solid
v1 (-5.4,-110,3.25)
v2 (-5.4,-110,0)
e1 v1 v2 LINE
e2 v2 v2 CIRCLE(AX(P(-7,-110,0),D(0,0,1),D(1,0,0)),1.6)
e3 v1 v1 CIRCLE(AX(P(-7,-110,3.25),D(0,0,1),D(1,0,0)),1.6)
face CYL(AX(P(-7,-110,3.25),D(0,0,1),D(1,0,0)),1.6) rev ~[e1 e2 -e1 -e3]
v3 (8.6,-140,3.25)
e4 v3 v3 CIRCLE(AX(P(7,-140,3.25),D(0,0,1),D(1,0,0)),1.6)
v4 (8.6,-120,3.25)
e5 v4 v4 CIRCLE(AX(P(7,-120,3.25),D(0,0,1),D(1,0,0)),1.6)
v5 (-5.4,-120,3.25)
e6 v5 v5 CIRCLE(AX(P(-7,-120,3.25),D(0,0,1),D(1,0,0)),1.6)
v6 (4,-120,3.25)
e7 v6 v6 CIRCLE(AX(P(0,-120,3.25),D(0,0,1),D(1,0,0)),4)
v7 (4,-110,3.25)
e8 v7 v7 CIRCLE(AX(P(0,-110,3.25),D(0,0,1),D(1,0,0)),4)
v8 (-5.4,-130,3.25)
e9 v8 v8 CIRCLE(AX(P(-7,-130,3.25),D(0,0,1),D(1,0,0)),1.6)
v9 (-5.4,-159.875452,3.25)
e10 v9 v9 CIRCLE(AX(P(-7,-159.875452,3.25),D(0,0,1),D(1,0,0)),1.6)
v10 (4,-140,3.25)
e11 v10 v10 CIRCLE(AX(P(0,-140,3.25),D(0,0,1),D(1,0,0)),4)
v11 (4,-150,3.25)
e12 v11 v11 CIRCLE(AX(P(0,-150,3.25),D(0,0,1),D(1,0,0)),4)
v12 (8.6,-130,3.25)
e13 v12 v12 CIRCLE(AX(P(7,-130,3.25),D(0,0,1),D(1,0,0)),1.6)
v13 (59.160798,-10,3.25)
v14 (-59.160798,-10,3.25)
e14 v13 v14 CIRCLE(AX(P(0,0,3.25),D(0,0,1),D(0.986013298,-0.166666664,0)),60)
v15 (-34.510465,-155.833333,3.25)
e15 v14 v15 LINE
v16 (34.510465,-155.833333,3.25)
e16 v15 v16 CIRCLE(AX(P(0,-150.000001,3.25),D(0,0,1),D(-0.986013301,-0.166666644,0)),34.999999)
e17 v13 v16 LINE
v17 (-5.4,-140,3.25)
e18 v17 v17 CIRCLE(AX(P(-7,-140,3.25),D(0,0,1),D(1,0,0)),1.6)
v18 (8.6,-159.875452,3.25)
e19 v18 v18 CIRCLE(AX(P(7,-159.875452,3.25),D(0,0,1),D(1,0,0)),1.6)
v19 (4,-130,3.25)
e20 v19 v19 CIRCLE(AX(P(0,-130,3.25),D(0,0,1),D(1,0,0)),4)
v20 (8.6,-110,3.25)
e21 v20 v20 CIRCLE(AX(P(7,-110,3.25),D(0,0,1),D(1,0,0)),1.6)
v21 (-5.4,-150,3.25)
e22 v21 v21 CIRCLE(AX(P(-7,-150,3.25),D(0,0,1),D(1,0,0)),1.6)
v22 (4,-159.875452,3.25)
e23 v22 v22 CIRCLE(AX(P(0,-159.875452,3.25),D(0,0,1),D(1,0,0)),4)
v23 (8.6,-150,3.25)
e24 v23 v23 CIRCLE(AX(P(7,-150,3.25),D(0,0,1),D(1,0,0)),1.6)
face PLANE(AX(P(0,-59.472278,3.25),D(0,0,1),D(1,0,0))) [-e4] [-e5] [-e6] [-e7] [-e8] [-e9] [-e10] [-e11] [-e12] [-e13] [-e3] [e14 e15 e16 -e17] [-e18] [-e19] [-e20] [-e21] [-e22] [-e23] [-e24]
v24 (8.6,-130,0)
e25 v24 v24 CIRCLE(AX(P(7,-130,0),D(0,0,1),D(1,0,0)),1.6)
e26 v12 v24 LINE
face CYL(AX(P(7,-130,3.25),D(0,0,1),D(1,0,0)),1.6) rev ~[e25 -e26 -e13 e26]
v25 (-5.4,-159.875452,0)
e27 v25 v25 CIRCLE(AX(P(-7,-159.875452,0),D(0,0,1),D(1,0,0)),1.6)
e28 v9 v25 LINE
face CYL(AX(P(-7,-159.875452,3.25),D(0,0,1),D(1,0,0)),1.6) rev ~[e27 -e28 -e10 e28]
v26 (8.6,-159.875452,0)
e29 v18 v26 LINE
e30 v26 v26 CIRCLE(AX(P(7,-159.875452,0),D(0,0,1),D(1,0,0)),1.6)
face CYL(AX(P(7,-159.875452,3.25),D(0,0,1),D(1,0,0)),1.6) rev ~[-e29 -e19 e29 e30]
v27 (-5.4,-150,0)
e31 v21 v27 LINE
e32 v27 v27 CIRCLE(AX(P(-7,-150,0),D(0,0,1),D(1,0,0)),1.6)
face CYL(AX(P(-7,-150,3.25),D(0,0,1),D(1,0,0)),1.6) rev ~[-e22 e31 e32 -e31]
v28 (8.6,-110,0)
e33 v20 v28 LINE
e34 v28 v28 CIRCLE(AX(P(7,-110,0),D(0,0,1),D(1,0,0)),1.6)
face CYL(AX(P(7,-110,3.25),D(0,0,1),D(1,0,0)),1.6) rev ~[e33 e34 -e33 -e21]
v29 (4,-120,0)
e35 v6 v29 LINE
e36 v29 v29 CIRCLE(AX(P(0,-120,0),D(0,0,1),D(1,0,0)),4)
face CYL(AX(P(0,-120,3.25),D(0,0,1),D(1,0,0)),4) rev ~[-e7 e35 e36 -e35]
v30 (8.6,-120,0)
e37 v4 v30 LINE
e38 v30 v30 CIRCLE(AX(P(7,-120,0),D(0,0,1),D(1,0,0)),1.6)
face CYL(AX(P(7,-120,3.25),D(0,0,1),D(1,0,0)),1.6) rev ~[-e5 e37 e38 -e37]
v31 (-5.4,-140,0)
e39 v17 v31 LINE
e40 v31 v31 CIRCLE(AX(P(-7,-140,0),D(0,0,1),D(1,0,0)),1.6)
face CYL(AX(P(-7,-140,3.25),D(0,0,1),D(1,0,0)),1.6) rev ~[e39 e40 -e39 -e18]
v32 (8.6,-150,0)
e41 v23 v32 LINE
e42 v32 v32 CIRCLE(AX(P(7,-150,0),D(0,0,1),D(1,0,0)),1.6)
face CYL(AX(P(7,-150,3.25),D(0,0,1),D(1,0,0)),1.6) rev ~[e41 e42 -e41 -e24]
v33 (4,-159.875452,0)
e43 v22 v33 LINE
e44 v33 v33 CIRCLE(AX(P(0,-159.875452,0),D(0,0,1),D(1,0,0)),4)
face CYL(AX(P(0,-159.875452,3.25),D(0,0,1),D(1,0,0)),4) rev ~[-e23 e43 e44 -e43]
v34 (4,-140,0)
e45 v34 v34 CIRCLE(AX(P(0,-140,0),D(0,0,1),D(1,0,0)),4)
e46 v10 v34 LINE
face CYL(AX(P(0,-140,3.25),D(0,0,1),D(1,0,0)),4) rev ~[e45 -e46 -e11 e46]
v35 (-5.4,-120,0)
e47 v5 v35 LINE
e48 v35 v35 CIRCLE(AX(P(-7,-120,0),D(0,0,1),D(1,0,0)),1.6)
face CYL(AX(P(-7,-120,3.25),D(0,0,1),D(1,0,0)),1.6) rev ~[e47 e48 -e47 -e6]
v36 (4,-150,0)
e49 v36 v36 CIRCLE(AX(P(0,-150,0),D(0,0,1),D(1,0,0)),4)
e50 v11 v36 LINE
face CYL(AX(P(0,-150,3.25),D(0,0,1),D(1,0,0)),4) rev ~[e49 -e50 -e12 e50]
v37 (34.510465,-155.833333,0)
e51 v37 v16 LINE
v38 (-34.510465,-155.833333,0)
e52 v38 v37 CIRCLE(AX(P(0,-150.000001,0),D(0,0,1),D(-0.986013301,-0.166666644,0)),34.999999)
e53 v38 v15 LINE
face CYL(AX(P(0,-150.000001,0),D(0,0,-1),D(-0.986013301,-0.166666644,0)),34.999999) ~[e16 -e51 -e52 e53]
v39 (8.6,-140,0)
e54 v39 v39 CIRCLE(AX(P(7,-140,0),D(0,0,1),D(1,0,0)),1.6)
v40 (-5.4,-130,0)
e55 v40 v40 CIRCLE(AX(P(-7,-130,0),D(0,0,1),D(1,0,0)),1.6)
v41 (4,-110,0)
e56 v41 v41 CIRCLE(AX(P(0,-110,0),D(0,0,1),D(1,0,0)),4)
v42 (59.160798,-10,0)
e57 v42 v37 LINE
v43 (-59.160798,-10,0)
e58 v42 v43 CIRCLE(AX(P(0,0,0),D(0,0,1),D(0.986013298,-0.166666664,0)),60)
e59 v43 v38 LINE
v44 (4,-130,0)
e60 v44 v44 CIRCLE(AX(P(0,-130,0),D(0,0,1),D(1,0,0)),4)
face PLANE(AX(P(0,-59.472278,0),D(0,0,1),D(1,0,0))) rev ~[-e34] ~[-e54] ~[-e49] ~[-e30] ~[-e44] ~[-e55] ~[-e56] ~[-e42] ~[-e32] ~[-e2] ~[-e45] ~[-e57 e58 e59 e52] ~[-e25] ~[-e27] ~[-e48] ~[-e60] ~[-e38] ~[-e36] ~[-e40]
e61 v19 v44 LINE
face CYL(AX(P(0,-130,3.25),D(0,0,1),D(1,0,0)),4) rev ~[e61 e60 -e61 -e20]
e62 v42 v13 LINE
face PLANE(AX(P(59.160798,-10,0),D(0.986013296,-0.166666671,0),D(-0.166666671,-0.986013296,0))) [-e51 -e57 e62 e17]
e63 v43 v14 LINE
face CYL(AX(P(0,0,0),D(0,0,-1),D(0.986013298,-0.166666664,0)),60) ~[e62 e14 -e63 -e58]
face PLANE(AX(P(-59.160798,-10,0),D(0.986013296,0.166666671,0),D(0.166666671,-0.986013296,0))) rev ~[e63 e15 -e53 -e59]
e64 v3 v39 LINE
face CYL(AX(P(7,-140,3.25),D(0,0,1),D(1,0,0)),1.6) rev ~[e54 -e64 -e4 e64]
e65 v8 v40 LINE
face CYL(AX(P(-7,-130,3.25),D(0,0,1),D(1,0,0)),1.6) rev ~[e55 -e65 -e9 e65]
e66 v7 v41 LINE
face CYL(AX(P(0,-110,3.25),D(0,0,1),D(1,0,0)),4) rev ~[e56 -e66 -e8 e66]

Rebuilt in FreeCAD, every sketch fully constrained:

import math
import FreeCAD as App
import Part
import Sketcher
from FreeCAD import Vector

doc = App.newDocument("Part")
body = doc.addObject("PartDesign::Body", "Body")

# Sketch on XY plane
sketch1 = doc.addObject("Sketcher::SketchObject", "Sketch")
body.addObject(sketch1)
sketch1.AttachmentSupport = (doc.XY_Plane, [""])
sketch1.MapMode = "FlatFace"
sketch1.addGeometry([
    Part.ArcOfCircle(Part.Circle(Vector(0, 0, 0), Vector(0, 0, 1), 60), math.radians(-10), math.radians(190)),
    Part.LineSegment(Vector(-59, -10, 0), Vector(-35, -156, 0)),
    Part.ArcOfCircle(Part.Circle(Vector(0, -150, 0), Vector(0, 0, 1), 35), math.radians(-170), math.radians(-10)),
    Part.LineSegment(Vector(35, -156, 0), Vector(59, -10, 0)),
], False)
sketch1.addConstraint([
    Sketcher.Constraint("Tangent", 0, 2, 1, 1),
    Sketcher.Constraint("Tangent", 1, 2, 2, 1),
    Sketcher.Constraint("Tangent", 2, 2, 3, 1),
    Sketcher.Constraint("Tangent", 3, 2, 0, 1),
    Sketcher.Constraint("Coincident", 0, 3, -1, 1),
    Sketcher.Constraint("PointOnObject", 2, 3, -2),
    Sketcher.Constraint("Radius", 0, 60.0),
    Sketcher.Constraint("Radius", 2, 34.999999),
    Sketcher.Constraint("DistanceY", 2, 3, -1, 1, 150.000001),
])
pad1 = doc.addObject("PartDesign::Pad", "Pad")
body.addObject(pad1)
pad1.Profile = sketch1
pad1.Length = 3.25

# Sketch on XY plane
sketch2 = doc.addObject("Sketcher::SketchObject", "Sketch001")
body.addObject(sketch2)
sketch2.AttachmentSupport = (doc.XY_Plane, [""])
sketch2.MapMode = "FlatFace"
sketch2.AttachmentOffset = App.Placement(Vector(0, 0, 3.25), App.Rotation())
sketch2.addGeometry([
    Part.Circle(Vector(0, -150, 0), Vector(0, 0, 1), 4),  # 0
    Part.Circle(Vector(-7, -150, 0), Vector(0, 0, 1), 1.6),  # 1
    Part.Circle(Vector(7, -150, 0), Vector(0, 0, 1), 1.6),  # 2
    Part.Circle(Vector(0, -130, 0), Vector(0, 0, 1), 4),  # 3
    Part.Circle(Vector(7, -130, 0), Vector(0, 0, 1), 1.6),  # 4
    Part.Circle(Vector(-7, -130, 0), Vector(0, 0, 1), 1.6),  # 5
    Part.Circle(Vector(0, -140, 0), Vector(0, 0, 1), 4),  # 6
    Part.Circle(Vector(7, -140, 0), Vector(0, 0, 1), 1.6),  # 7
    Part.Circle(Vector(-7, -140, 0), Vector(0, 0, 1), 1.6),  # 8
    Part.Circle(Vector(0, -159.9, 0), Vector(0, 0, 1), 4),  # 9
    Part.Circle(Vector(7, -159.9, 0), Vector(0, 0, 1), 1.6),  # 10
    Part.Circle(Vector(-7, -159.9, 0), Vector(0, 0, 1), 1.6),  # 11
    Part.Circle(Vector(0, -120, 0), Vector(0, 0, 1), 4),  # 12
    Part.Circle(Vector(7, -120, 0), Vector(0, 0, 1), 1.6),  # 13
    Part.Circle(Vector(-7, -120, 0), Vector(0, 0, 1), 1.6),  # 14
    Part.Circle(Vector(0, -110, 0), Vector(0, 0, 1), 4),  # 15
    Part.Circle(Vector(7, -110, 0), Vector(0, 0, 1), 1.6),  # 16
    Part.Circle(Vector(-7, -110, 0), Vector(0, 0, 1), 1.6),  # 17
], False)
sketch2.addConstraint([
    Sketcher.Constraint("Equal", 1, 2),
    Sketcher.Constraint("Equal", 0, 3),
    Sketcher.Constraint("Equal", 2, 4),
    Sketcher.Constraint("Equal", 4, 5),
    Sketcher.Constraint("Equal", 3, 6),
    Sketcher.Constraint("Equal", 5, 7),
    Sketcher.Constraint("Equal", 7, 8),
    Sketcher.Constraint("Equal", 6, 9),
    Sketcher.Constraint("Equal", 8, 10),
    Sketcher.Constraint("Equal", 10, 11),
    Sketcher.Constraint("Equal", 9, 12),
    Sketcher.Constraint("Equal", 11, 13),
    Sketcher.Constraint("Equal", 13, 14),
    Sketcher.Constraint("Equal", 12, 15),
    Sketcher.Constraint("Equal", 14, 16),
    Sketcher.Constraint("Equal", 16, 17),
    Sketcher.Constraint("Symmetric", 1, 3, 2, 3, -2),
    Sketcher.Constraint("Symmetric", 4, 3, 5, 3, -2),
    Sketcher.Constraint("Symmetric", 7, 3, 8, 3, -2),
    Sketcher.Constraint("Symmetric", 10, 3, 11, 3, -2),
    Sketcher.Constraint("Symmetric", 13, 3, 14, 3, -2),
    Sketcher.Constraint("Symmetric", 16, 3, 17, 3, -2),
    Sketcher.Constraint("PointOnObject", 0, 3, -2),
    Sketcher.Constraint("PointOnObject", 3, 3, -2),
    Sketcher.Constraint("PointOnObject", 6, 3, -2),
    Sketcher.Constraint("PointOnObject", 9, 3, -2),
    Sketcher.Constraint("PointOnObject", 12, 3, -2),
    Sketcher.Constraint("PointOnObject", 15, 3, -2),
    Sketcher.Constraint("Horizontal", 0, 3, 1, 3),
    Sketcher.Constraint("Horizontal", 3, 3, 4, 3),
    Sketcher.Constraint("Horizontal", 6, 3, 7, 3),
    Sketcher.Constraint("Horizontal", 9, 3, 10, 3),
    Sketcher.Constraint("Horizontal", 12, 3, 13, 3),
    Sketcher.Constraint("Horizontal", 15, 3, 16, 3),
    Sketcher.Constraint("Vertical", 2, 3, 4, 3),
    Sketcher.Constraint("Vertical", 4, 3, 7, 3),
    Sketcher.Constraint("Vertical", 7, 3, 10, 3),
    Sketcher.Constraint("Vertical", 10, 3, 13, 3),
    Sketcher.Constraint("Vertical", 13, 3, 16, 3),
    Sketcher.Constraint("Diameter", 0, 8.0),
    Sketcher.Constraint("Diameter", 1, 3.2),
    Sketcher.Constraint("DistanceY", 0, 3, -1, 1, 150.0),
    Sketcher.Constraint("DistanceX", 1, 3, -1, 1, 7.0),
    Sketcher.Constraint("DistanceY", 3, 3, -1, 1, 130.0),
    Sketcher.Constraint("DistanceY", 6, 3, -1, 1, 140.0),
    Sketcher.Constraint("DistanceY", 12, 3, -1, 1, 120.0),
    Sketcher.Constraint("DistanceY", 15, 3, -1, 1, 110.0),
    Sketcher.Constraint("DistanceY", 9, 3, -1, 1, 159.875452),
])
pocket1 = doc.addObject("PartDesign::Pocket", "Pocket")
body.addObject(pocket1)
pocket1.Profile = sketch2
pocket1.Length = 3.5

doc.recompute()
